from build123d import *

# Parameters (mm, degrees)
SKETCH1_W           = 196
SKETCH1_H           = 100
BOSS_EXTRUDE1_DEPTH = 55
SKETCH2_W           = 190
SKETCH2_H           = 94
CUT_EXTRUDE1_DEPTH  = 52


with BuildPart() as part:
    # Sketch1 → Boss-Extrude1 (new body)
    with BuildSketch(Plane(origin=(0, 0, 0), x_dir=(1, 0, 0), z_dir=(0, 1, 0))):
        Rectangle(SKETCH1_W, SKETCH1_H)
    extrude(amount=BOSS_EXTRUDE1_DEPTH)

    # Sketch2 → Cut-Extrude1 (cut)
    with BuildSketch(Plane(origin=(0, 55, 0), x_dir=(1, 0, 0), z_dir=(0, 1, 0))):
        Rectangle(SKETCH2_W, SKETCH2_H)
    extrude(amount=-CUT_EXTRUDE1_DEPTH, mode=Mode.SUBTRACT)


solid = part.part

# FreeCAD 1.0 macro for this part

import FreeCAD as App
import Part
import Sketcher

V = App.Vector


def add_polygon(sketch, points):
    """Adds a closed chain of lines whose ends are joined by coincident constraints."""
    first, n = sketch.GeometryCount, len(points)
    for a, b in zip(points, points[1:] + points[:1]):
        sketch.addGeometry(Part.LineSegment(App.Vector(*a, 0), App.Vector(*b, 0)), False)
    for i in range(n):
        sketch.addConstraint(Sketcher.Constraint("Coincident", first + i, 2, first + (i + 1) % n, 1))

doc = App.newDocument("Part")
params = doc.addObject("Spreadsheet::Sheet", "Params")
for row, (alias, value) in enumerate([
    ("sketch1_width", "196 mm"),
    ("sketch1_height", "100 mm"),
    ("pad1_length", "55 mm"),
    ("sketch2_width", "190 mm"),
    ("sketch2_height", "94 mm"),
    ("pocket1_length", "52 mm"),
], start=1):
    params.set(f"A{row}", alias)
    params.set(f"B{row}", "=" + value)
    params.setAlias(f"B{row}", alias)

body = doc.addObject("PartDesign::Body", "Body")

# Sketch on XZ plane
sketch1 = body.newObject("Sketcher::SketchObject", "Sketch")
sketch1.AttachmentSupport = (doc.getObject("XZ_Plane"), [""])
sketch1.MapMode = "FlatFace"
add_polygon(sketch1, [(-98, -50), (-98, 50), (98, 50), (98, -50)])  # lines 0-3
sketch1.addConstraint([
    Sketcher.Constraint("Vertical", 0),
    Sketcher.Constraint("Horizontal", 1),
    Sketcher.Constraint("Vertical", 2),
    Sketcher.Constraint("Horizontal", 3),
    Sketcher.Constraint("Symmetric", 0, 2, 2, 2, -1, 1),
    Sketcher.Constraint("DistanceX", 1, 1, 1, 2, 196.0),
    Sketcher.Constraint("DistanceY", 0, 1, 0, 2, 100.0),
])
sketch1.setExpression("Constraints[9]", "Params.sketch1_width")
sketch1.setExpression("Constraints[10]", "Params.sketch1_height")
pad1 = body.newObject("PartDesign::Pad", "Pad")
pad1.Profile = sketch1
pad1.setExpression("Length", "Params.pad1_length")
pad1.Reversed = True

# Sketch on XZ plane
sketch2 = body.newObject("Sketcher::SketchObject", "Sketch001")
sketch2.AttachmentSupport = (doc.getObject("XZ_Plane"), [""])
sketch2.MapMode = "FlatFace"
sketch2.AttachmentOffset = App.Placement(V(0, 0, -55), App.Rotation())
add_polygon(sketch2, [(-95, -47), (-95, 47), (95, 47), (95, -47)])  # lines 0-3
sketch2.addConstraint([
    Sketcher.Constraint("Vertical", 0),
    Sketcher.Constraint("Horizontal", 1),
    Sketcher.Constraint("Vertical", 2),
    Sketcher.Constraint("Horizontal", 3),
    Sketcher.Constraint("Symmetric", 0, 2, 2, 2, -1, 1),
    Sketcher.Constraint("DistanceX", 1, 1, 1, 2, 190.0),
    Sketcher.Constraint("DistanceY", 0, 1, 0, 2, 94.0),
])
sketch2.setExpression("Constraints[9]", "Params.sketch2_width")
sketch2.setExpression("Constraints[10]", "Params.sketch2_height")
pocket1 = body.newObject("PartDesign::Pocket", "Pocket")
pocket1.Profile = sketch2
pocket1.setExpression("Length", "Params.pocket1_length")
pocket1.Reversed = True

doc.recompute()
